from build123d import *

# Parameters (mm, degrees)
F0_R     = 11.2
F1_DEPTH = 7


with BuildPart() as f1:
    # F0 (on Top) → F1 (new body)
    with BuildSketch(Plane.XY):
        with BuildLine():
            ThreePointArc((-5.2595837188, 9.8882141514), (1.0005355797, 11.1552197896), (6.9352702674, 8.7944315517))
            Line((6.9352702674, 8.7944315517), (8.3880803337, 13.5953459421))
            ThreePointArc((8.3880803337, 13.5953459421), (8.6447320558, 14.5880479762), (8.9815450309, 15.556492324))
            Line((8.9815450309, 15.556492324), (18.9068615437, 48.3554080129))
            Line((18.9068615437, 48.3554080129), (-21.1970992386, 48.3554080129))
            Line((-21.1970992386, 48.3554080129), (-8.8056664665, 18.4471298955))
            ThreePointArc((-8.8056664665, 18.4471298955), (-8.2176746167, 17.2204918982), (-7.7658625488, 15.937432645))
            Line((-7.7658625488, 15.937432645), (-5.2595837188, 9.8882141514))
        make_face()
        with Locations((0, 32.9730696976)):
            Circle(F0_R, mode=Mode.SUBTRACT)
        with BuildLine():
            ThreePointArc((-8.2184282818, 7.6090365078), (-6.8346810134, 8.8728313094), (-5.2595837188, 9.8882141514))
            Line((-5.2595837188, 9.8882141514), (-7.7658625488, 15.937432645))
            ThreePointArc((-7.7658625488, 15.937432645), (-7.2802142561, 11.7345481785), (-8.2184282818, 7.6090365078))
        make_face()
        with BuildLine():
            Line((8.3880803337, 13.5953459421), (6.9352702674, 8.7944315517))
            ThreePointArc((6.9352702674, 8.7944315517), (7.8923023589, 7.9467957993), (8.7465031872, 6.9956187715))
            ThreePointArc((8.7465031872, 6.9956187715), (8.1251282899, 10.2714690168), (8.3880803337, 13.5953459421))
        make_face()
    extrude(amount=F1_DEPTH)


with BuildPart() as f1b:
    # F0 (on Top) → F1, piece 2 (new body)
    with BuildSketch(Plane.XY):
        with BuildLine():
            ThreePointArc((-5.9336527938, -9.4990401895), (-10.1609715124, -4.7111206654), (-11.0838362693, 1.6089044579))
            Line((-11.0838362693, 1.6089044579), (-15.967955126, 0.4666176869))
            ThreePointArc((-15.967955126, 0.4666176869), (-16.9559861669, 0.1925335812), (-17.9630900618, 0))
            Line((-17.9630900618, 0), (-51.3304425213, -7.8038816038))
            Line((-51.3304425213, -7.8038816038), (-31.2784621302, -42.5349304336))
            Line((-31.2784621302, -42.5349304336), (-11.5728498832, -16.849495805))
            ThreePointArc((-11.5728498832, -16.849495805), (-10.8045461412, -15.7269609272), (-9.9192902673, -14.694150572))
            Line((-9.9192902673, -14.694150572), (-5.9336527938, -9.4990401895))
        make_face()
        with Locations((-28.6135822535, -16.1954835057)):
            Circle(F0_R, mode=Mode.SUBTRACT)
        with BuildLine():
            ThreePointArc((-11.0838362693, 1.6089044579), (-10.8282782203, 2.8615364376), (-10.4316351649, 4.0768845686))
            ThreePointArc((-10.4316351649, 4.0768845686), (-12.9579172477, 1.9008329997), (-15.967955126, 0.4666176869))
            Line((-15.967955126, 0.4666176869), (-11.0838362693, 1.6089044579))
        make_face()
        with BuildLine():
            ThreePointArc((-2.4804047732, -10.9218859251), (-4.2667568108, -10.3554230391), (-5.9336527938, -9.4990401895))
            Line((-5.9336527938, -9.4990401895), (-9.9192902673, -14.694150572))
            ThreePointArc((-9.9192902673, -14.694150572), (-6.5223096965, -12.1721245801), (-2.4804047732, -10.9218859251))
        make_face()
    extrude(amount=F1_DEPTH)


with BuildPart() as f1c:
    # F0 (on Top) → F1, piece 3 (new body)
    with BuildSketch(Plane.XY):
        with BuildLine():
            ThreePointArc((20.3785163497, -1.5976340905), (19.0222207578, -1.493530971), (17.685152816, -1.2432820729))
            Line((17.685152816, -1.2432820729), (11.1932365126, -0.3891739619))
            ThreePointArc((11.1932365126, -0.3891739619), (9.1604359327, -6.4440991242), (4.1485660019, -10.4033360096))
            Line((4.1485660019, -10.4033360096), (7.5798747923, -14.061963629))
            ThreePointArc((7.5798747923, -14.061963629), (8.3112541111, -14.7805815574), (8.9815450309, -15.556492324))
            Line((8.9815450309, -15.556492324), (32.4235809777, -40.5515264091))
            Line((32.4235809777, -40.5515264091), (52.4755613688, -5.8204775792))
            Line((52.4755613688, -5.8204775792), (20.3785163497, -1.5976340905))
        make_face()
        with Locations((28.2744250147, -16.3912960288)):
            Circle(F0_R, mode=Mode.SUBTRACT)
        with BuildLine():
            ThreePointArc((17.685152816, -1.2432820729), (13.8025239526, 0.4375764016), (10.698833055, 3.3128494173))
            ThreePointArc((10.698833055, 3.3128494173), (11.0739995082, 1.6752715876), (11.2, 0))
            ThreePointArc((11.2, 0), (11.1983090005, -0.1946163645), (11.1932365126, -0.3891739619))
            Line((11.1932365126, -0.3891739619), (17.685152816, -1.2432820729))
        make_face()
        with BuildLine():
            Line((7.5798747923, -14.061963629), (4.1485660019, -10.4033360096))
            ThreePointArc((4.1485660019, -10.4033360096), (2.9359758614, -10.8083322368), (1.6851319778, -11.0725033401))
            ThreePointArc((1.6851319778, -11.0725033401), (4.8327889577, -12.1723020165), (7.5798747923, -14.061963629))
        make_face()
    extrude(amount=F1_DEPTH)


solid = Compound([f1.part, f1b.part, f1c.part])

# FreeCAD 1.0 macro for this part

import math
import FreeCAD as App
import Part
import Sketcher
from FreeCAD import Vector
Q = App.Units.Quantity

doc = App.newDocument("Part")
body = doc.addObject("PartDesign::Body", "Body")

# Sketch on XY plane
sketch1 = doc.addObject("Sketcher::SketchObject", "Sketch")
body.addObject(sketch1)
sketch1.AttachmentSupport = (doc.XY_Plane, [""])
sketch1.MapMode = "FlatFace"
sketch1.addGeometry([
    Part.ArcOfCircle(Part.Circle(Vector(0, 0, 0), Vector(0, 0, 1), 11.2), math.radians(52), math.radians(118)),  # 0
    Part.ArcOfCircle(Part.Circle(Vector(0, 0, 0), Vector(0, 0, 1), 11.2), math.radians(38.65), math.radians(51.74)),  # 1
    Part.ArcOfCircle(Part.Circle(Vector(20.7, 11, 0), Vector(0, 0, 1), 12.6), math.radians(168), math.radians(198)),  # 2
    Part.ArcOfCircle(Part.Circle(Vector(20.7, 11, 0), Vector(0, 0, 1), 12.6), math.radians(158.48), math.radians(167.84)),  # 3
    Part.LineSegment(Vector(9, 15.6, 0), Vector(18.9, 48.4, 0)),  # 4
    Part.LineSegment(Vector(18.9, 48.4, 0), Vector(-21.2, 48.4, 0)),  # 5
    Part.LineSegment(Vector(-21.2, 48.4, 0), Vector(-8.8, 18.4, 0)),  # 6
    Part.ArcOfCircle(Part.Circle(Vector(-19.8, 12.4, 0), Vector(0, 0, 1), 12.6), math.radians(16.29), math.radians(28.72)),  # 7
    Part.ArcOfCircle(Part.Circle(Vector(-19.8, 12.4, 0), Vector(0, 0, 1), 12.6), math.radians(-23), math.radians(16)),  # 8
    Part.ArcOfCircle(Part.Circle(Vector(0, 0, 0), Vector(0, 0, 1), 11.2), math.radians(118.01), math.radians(137.2)),  # 9
    Part.Circle(Vector(0, 33, 0), Vector(0, 0, 1), 11.2),  # 10
], False)
sketch1.addConstraint([
    Sketcher.Constraint("Tangent", 0, 1, 1, 2),
    Sketcher.Constraint("Coincident", 1, 1, 2, 2),
    Sketcher.Constraint("Tangent", 2, 1, 3, 2),
    Sketcher.Constraint("Coincident", 3, 1, 4, 1),
    Sketcher.Constraint("Coincident", 4, 2, 5, 1),
    Sketcher.Constraint("Coincident", 5, 2, 6, 1),
    Sketcher.Constraint("Coincident", 6, 2, 7, 2),
    Sketcher.Constraint("Tangent", 7, 1, 8, 2),
    Sketcher.Constraint("Coincident", 8, 1, 9, 2),
    Sketcher.Constraint("Tangent", 9, 1, 0, 2),
    Sketcher.Constraint("Horizontal", 5),
    Sketcher.Constraint("Coincident", 0, 3, -1, 1),
    Sketcher.Constraint("Equal", 0, 1),
    Sketcher.Constraint("Equal", 2, 3),
    Sketcher.Constraint("Equal", 3, 7),
    Sketcher.Constraint("Equal", 7, 8),
    Sketcher.Constraint("Equal", 1, 9),
    Sketcher.Constraint("Equal", 9, 10),
    Sketcher.Constraint("PointOnObject", 10, 3, -2),
    Sketcher.Constraint("Diameter", 10, 22.4),
    Sketcher.Constraint("Radius", 2, 12.552985),
    Sketcher.Constraint("DistanceY", 0, 1, 7, 1, 7.143001),
    Sketcher.Constraint("DistanceX", 5, 2, 5, 1, 40.103961),
    Sketcher.Constraint("DistanceX", 5, 2, -1, 1, 21.197099),
    Sketcher.Constraint("Distance", 4, 34.26778),
    Sketcher.Constraint("DistanceY", -1, 1, 10, 3, 32.97307),
    Sketcher.Constraint("DistanceX", -1, 1, 0, 1, 6.93527),
    Sketcher.Constraint("DistanceY", -1, 1, 1, 1, 6.995619),
    Sketcher.Constraint("DistanceX", -1, 1, 2, 1, 8.38808),
    Sketcher.Constraint("DistanceY", -1, 1, 4, 2, 48.355408),
    Sketcher.Constraint("DistanceY", -1, 1, 6, 2, 18.44713),
    Sketcher.Constraint("DistanceX", 8, 1, -1, 1, 8.218428),
    Sketcher.Constraint("DistanceX", 7, 3, 3, 3, 40.474349),
    Sketcher.Constraint("DistanceY", 3, 3, 7, 3, 1.463471),
    Sketcher.Constraint("DistanceX", 7, 1, 9, 1, 2.506279),
])
pad1 = doc.addObject("PartDesign::Pad", "Pad")
body.addObject(pad1)
pad1.Profile = sketch1
pad1.Length = 7
body2 = doc.addObject("PartDesign::Body", "Body001")

# Sketch on XY plane
sketch2 = doc.addObject("Sketcher::SketchObject", "Sketch001")
body2.addObject(sketch2)
sketch2.AttachmentSupport = (doc.getObject("XY_Plane001"), [""])
sketch2.MapMode = "FlatFace"
sketch2.addGeometry([
    Part.ArcOfCircle(Part.Circle(Vector(0, 0, 0), Vector(0, 0, 1), 11.2), math.radians(172), math.radians(238)),  # 0
    Part.ArcOfCircle(Part.Circle(Vector(0, 0, 0), Vector(0, 0, 1), 11.2), math.radians(158.65), math.radians(171.74)),  # 1
    Part.ArcOfCircle(Part.Circle(Vector(-19.8, 12.4, 0), Vector(0, 0, 1), 12.6), math.radians(-72), math.radians(-42)),  # 2
    Part.ArcOfCircle(Part.Circle(Vector(-19.8, 12.4, 0), Vector(0, 0, 1), 12.6), math.radians(-81.52), math.radians(-72.16)),  # 3
    Part.LineSegment(Vector(-18, 0, 0), Vector(-51.3, -7.8, 0)),  # 4
    Part.LineSegment(Vector(-51.3, -7.8, 0), Vector(-31.3, -42.5, 0)),  # 5
    Part.LineSegment(Vector(-31.3, -42.5, 0), Vector(-11.6, -16.8, 0)),  # 6
    Part.ArcOfCircle(Part.Circle(Vector(-0.8, -23.4, 0), Vector(0, 0, 1), 12.6), math.radians(136.29), math.radians(148.72)),  # 7
    Part.ArcOfCircle(Part.Circle(Vector(-0.8, -23.4, 0), Vector(0, 0, 1), 12.6), math.radians(97), math.radians(136)),  # 8
    Part.ArcOfCircle(Part.Circle(Vector(0, 0, 0), Vector(0, 0, 1), 11.2), math.radians(-121.99), math.radians(-102.8)),  # 9
    Part.Circle(Vector(-28.6, -16.2, 0), Vector(0, 0, 1), 11.2),  # 10
], False)
sketch2.addConstraint([
    Sketcher.Constraint("Tangent", 0, 1, 1, 2),
    Sketcher.Constraint("Coincident", 1, 1, 2, 2),
    Sketcher.Constraint("Tangent", 2, 1, 3, 2),
    Sketcher.Constraint("Coincident", 3, 1, 4, 1),
    Sketcher.Constraint("Coincident", 4, 2, 5, 1),
    Sketcher.Constraint("Coincident", 5, 2, 6, 1),
    Sketcher.Constraint("Coincident", 6, 2, 7, 2),
    Sketcher.Constraint("Tangent", 7, 1, 8, 2),
    Sketcher.Constraint("Coincident", 8, 1, 9, 2),
    Sketcher.Constraint("Tangent", 9, 1, 0, 2),
    Sketcher.Constraint("Coincident", 0, 3, -1, 1),
    Sketcher.Constraint("Equal", 0, 1),
    Sketcher.Constraint("Equal", 2, 3),
    Sketcher.Constraint("Equal", 3, 7),
    Sketcher.Constraint("Equal", 7, 8),
    Sketcher.Constraint("Equal", 1, 9),
    Sketcher.Constraint("Equal", 9, 10),
    Sketcher.Constraint("PointOnObject", 3, 1, -1),
    Sketcher.Constraint("Diameter", 10, 22.4),
    Sketcher.Constraint("Angle", 5, Q("-60 deg")),
    Sketcher.Constraint("Radius", 2, 12.552985),
    Sketcher.Constraint("DistanceX", 0, 1, 1, 1, 0.652201),
    Sketcher.Constraint("DistanceY", 10, 3, 4, 2, 8.391602),
    Sketcher.Constraint("DistanceY", 4, 2, 2, 1, 8.270499),
    Sketcher.Constraint("Distance", 4, 34.26778),
    Sketcher.Constraint("Distance", 5, 40.103961),
    Sketcher.Constraint("DistanceX", 3, 1, -1, 1, 17.96309),
    Sketcher.Constraint("DistanceY", 4, 2, -1, 1, 7.803882),
    Sketcher.Constraint("DistanceX", 6, 2, -1, 1, 11.57285),
    Sketcher.Constraint("DistanceX", 7, 1, -1, 1, 9.91929),
    Sketcher.Constraint("DistanceY", 7, 1, -1, 1, 14.694151),
    Sketcher.Constraint("DistanceY", 9, 1, -1, 1, 9.49904),
    Sketcher.Constraint("DistanceX", 2, 3, 7, 3, 18.969771),
    Sketcher.Constraint("DistanceY", 7, 3, 2, 3, 35.78355),
    Sketcher.Constraint("DistanceX", 4, 2, 10, 3, 22.71686),
])
pad2 = doc.addObject("PartDesign::Pad", "Pad001")
body2.addObject(pad2)
pad2.Profile = sketch2
pad2.Length = 7
body3 = doc.addObject("PartDesign::Body", "Body002")

# Sketch on XY plane
sketch3 = doc.addObject("Sketcher::SketchObject", "Sketch002")
body3.addObject(sketch3)
sketch3.AttachmentSupport = (doc.getObject("XY_Plane002"), [""])
sketch3.MapMode = "FlatFace"
sketch3.addGeometry([
    Part.ArcOfCircle(Part.Circle(Vector(20.66, 10.95, 0), Vector(0, 0, 1), 12.55), math.radians(-103.71), math.radians(-91.28)),  # 0
    Part.ArcOfCircle(Part.Circle(Vector(20.66, 10.95, 0), Vector(0, 0, 1), 12.55), math.radians(-143), math.radians(-104)),  # 1
    Part.ArcOfCircle(Part.Circle(Vector(0, 0, 0), Vector(0, 0, 1), 11.2), math.radians(0), math.radians(17.2)),  # 2
    Part.ArcOfCircle(Part.Circle(Vector(0, 0, 0), Vector(0, 0, 1), 11.2), math.radians(-1.99), math.radians(0)),  # 3
    Part.ArcOfCircle(Part.Circle(Vector(0, 0, 0), Vector(0, 0, 1), 11.2), math.radians(-68), math.radians(-2)),  # 4
    Part.ArcOfCircle(Part.Circle(Vector(0, 0, 0), Vector(0, 0, 1), 11.2), math.radians(-81.35), math.radians(-68.26)),  # 5
    Part.ArcOfCircle(Part.Circle(Vector(-0.84, -23.37, 0), Vector(0, 0, 1), 12.55), math.radians(48), math.radians(78)),  # 6
    Part.ArcOfCircle(Part.Circle(Vector(-0.84, -23.37, 0), Vector(0, 0, 1), 12.55), math.radians(38.48), math.radians(47.84)),  # 7
    Part.LineSegment(Vector(8.98, -15.56, 0), Vector(32.42, -40.55, 0)),  # 8
    Part.LineSegment(Vector(32.42, -40.55, 0), Vector(52.48, -5.82, 0)),  # 9
    Part.LineSegment(Vector(52.48, -5.82, 0), Vector(20.38, -1.6, 0)),  # 10
    Part.Circle(Vector(28.27, -16.39, 0), Vector(0, 0, 1), 11.2),  # 11
], False)
sketch3.addConstraint([
    Sketcher.Constraint("Tangent", 0, 1, 1, 2),
    Sketcher.Constraint("Coincident", 1, 1, 2, 2),
    Sketcher.Constraint("Tangent", 2, 1, 3, 2),
    Sketcher.Constraint("Tangent", 3, 1, 4, 2),
    Sketcher.Constraint("Tangent", 4, 1, 5, 2),
    Sketcher.Constraint("Coincident", 5, 1, 6, 2),
    Sketcher.Constraint("Tangent", 6, 1, 7, 2),
    Sketcher.Constraint("Coincident", 7, 1, 8, 1),
    Sketcher.Constraint("Coincident", 8, 2, 9, 1),
    Sketcher.Constraint("Coincident", 9, 2, 10, 1),
    Sketcher.Constraint("Coincident", 10, 2, 0, 2),
    Sketcher.Constraint("Coincident", 2, 3, -1, 1),
    Sketcher.Constraint("Coincident", 4, 3, -1, 1),
    Sketcher.Constraint("Equal", 0, 1),
    Sketcher.Constraint("Equal", 4, 5),
    Sketcher.Constraint("Equal", 1, 6),
    Sketcher.Constraint("Equal", 6, 7),
    Sketcher.Constraint("Equal", 5, 11),
    Sketcher.Constraint("PointOnObject", 2, 1, -1),
    Sketcher.Constraint("Diameter", 11, 22.4),
    Sketcher.Constraint("Angle", 9, Q("60 deg")),
    Sketcher.Constraint("Radius", 0, 12.552985),
    Sketcher.Constraint("DistanceY", 11, 3, 0, 3, 27.343499),
    Sketcher.Constraint("Distance", 8, 34.26778),
    Sketcher.Constraint("Distance", 9, 40.103961),
    Sketcher.Constraint("DistanceY", -1, 1, 1, 1, 3.312849),
    Sketcher.Constraint("DistanceX", -1, 1, 5, 1, 1.685132),
    Sketcher.Constraint("DistanceX", -1, 1, 8, 2, 32.423581),
    Sketcher.Constraint("DistanceX", 3, 3, 0, 3, 20.659642),
    Sketcher.Constraint("DistanceY", 6, 3, 0, 3, 34.320079),
    Sketcher.Constraint("DistanceX", 6, 3, 11, 3, 29.11936),
    Sketcher.Constraint("DistanceX", 0, 1, 0, 3, 2.974489),
    Sketcher.Constraint("DistanceY", 0, 1, 3, 1, 0.854108),
    Sketcher.Constraint("DistanceX", 4, 1, 3, 1, 7.044671),
    Sketcher.Constraint("DistanceX", 4, 1, 6, 1, 3.431309),
    Sketcher.Constraint("DistanceX", 6, 1, 7, 1, 1.40167),
    Sketcher.Constraint("DistanceX", 3, 1, 10, 2, 9.18528),
])
pad3 = doc.addObject("PartDesign::Pad", "Pad002")
body3.addObject(pad3)
pad3.Profile = sketch3
pad3.Length = 7

doc.recompute()
